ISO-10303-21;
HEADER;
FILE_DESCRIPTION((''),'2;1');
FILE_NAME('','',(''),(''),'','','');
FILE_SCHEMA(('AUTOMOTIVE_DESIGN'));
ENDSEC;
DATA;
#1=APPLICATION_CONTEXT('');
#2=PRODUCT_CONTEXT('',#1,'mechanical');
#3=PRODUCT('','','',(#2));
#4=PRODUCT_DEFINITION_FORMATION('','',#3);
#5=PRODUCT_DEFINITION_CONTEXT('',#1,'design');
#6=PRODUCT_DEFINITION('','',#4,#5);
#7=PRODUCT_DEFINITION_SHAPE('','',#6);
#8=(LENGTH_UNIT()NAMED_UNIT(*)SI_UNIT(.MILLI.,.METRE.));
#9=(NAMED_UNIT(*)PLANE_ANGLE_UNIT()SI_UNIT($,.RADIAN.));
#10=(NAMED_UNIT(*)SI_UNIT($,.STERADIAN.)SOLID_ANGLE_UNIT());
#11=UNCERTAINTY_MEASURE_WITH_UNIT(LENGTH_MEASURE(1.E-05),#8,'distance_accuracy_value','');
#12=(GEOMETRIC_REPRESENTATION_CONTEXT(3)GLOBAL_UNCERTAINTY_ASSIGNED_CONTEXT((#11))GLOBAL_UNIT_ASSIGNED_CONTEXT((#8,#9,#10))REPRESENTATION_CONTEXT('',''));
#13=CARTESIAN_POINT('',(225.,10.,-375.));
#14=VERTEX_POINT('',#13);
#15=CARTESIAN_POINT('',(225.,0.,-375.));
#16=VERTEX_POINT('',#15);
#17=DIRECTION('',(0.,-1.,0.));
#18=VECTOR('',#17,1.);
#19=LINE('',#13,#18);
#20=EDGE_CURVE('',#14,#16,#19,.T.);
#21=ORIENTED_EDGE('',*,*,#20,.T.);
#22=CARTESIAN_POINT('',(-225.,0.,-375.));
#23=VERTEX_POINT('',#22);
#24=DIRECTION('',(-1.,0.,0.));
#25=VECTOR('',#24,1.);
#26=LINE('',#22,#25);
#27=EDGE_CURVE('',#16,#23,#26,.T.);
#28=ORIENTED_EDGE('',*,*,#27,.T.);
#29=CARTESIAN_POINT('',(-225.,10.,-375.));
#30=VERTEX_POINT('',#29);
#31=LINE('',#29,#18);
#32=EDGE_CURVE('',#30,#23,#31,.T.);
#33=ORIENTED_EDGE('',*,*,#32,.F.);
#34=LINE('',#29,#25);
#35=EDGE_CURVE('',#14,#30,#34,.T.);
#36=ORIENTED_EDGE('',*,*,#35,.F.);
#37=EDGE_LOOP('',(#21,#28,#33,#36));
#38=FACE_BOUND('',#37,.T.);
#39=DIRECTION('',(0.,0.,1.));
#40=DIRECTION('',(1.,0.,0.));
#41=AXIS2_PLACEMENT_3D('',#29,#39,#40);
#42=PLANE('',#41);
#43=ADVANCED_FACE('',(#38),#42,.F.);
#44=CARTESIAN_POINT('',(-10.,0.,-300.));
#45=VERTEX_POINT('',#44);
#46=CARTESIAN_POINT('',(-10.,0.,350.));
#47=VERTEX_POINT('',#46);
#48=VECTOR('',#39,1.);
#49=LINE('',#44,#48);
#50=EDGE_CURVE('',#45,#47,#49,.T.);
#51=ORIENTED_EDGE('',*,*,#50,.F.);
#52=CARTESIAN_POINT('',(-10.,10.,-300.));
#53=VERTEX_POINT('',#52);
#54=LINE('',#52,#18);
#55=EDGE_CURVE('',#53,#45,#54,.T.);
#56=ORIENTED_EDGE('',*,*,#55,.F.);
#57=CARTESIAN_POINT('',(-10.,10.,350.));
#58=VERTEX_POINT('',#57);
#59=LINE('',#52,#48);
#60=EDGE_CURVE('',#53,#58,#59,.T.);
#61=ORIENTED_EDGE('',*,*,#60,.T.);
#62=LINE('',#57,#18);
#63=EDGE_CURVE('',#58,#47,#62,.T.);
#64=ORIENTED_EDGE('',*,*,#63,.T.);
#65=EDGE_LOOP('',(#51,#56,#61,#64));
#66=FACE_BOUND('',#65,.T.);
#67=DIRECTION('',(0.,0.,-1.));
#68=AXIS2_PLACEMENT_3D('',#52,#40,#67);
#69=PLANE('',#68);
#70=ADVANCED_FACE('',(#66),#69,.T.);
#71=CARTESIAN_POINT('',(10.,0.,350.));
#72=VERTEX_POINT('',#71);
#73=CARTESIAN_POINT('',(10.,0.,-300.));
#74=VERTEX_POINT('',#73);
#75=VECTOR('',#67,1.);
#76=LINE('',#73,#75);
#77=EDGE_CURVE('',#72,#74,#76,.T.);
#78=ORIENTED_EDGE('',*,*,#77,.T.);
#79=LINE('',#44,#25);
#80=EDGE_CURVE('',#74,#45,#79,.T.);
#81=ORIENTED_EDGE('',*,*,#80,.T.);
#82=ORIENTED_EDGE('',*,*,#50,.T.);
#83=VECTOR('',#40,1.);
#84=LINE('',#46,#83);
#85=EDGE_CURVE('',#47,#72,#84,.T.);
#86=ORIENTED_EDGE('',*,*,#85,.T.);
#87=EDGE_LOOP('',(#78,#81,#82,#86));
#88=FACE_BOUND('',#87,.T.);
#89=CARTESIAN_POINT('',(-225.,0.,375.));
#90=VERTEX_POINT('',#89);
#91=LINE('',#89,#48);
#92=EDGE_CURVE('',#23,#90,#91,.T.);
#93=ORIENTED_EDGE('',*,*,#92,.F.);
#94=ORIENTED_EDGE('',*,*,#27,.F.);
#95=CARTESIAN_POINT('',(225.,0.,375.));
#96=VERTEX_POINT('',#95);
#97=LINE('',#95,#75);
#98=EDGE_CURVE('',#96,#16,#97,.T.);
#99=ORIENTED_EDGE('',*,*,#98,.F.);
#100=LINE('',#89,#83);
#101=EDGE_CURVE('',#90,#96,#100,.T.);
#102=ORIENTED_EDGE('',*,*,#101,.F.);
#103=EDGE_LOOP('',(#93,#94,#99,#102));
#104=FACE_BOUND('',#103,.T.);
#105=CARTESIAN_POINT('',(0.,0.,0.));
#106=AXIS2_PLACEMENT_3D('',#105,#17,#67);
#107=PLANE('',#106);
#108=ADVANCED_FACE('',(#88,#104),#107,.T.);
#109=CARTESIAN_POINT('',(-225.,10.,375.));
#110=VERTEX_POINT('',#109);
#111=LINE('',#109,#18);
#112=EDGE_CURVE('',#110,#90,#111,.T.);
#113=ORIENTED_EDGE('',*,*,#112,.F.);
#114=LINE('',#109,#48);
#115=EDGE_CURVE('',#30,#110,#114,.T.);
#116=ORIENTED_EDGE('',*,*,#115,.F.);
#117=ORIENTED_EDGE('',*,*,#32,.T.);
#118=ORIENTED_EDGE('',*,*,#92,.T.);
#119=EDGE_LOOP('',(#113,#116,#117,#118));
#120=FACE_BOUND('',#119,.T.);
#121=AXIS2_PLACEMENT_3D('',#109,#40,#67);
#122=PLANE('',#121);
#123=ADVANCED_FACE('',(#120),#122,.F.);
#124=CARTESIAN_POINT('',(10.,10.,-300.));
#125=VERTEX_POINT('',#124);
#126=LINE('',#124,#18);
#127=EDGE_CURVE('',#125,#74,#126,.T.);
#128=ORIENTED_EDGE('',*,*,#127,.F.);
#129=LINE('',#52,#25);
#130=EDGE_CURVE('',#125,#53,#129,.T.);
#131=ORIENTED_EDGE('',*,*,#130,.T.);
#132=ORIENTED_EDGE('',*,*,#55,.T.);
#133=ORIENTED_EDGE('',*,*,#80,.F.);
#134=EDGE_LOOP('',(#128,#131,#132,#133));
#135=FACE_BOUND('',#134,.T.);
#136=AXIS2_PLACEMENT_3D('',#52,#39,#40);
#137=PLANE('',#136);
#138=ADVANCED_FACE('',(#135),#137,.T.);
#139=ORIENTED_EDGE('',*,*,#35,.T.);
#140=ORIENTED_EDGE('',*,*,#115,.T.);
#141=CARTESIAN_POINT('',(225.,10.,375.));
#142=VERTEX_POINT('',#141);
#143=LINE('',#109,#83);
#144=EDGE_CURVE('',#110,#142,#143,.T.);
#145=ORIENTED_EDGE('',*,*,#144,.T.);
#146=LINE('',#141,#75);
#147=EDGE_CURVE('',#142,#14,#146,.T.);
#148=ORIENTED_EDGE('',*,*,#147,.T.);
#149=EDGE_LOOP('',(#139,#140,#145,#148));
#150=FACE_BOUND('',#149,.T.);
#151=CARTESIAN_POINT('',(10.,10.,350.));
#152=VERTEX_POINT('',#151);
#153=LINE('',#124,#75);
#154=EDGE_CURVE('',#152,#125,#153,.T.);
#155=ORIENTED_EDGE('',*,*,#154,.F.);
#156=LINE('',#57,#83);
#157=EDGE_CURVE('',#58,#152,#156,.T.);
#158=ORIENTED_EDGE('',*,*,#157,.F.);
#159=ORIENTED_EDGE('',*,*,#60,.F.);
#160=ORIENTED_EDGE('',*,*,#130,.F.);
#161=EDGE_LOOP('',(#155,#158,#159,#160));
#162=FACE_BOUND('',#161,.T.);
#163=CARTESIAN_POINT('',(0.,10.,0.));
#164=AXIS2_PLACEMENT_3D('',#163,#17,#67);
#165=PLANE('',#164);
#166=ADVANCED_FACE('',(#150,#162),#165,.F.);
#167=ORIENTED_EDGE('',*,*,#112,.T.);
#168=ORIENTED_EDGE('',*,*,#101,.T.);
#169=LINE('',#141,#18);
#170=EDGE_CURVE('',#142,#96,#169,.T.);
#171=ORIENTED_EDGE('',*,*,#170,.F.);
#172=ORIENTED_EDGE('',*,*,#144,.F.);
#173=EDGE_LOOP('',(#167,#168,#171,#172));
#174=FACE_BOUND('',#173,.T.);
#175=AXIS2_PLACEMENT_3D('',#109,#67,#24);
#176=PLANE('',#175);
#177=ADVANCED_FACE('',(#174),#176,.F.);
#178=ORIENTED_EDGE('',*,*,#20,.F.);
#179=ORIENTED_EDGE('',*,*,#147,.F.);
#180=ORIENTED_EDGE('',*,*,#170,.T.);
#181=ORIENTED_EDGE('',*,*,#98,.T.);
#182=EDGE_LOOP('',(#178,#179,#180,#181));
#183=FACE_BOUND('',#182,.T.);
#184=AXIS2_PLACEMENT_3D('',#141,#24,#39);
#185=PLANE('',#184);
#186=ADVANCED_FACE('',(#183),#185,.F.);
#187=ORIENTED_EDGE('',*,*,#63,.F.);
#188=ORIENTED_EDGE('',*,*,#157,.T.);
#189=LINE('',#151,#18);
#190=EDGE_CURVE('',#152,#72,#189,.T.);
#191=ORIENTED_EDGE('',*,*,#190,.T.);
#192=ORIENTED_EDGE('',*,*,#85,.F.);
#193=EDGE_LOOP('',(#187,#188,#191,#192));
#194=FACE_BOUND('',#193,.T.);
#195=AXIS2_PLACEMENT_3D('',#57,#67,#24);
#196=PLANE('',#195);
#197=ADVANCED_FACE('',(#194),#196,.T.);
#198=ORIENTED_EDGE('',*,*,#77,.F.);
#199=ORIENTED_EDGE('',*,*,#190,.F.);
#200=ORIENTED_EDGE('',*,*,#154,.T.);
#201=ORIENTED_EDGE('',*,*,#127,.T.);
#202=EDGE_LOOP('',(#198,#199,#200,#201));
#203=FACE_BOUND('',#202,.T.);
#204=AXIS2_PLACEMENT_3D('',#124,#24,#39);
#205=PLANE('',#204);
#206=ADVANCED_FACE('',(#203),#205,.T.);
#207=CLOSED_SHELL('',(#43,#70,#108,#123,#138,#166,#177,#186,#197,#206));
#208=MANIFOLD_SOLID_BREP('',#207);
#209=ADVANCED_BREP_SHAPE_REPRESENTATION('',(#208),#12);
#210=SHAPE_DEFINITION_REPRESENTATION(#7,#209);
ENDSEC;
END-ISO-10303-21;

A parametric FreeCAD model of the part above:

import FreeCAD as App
import Part
import Sketcher

V = App.Vector

doc = App.newDocument("Part")
body = doc.addObject("PartDesign::Body", "Body")

# Sketch on XZ plane
sketch1 = doc.addObject("Sketcher::SketchObject", "Sketch")
body.addObject(sketch1)
sketch1.AttachmentSupport = (doc.XZ_Plane, [""])
sketch1.MapMode = "FlatFace"
sketch1.addGeometry(Part.LineSegment(V(-225, -375, 0), V(-225, 375, 0)), False)
sketch1.addGeometry(Part.LineSegment(V(-225, 375, 0), V(225, 375, 0)), False)
sketch1.addGeometry(Part.LineSegment(V(225, 375, 0), V(225, -375, 0)), False)
sketch1.addGeometry(Part.LineSegment(V(225, -375, 0), V(-225, -375, 0)), False)
sketch1.addGeometry(Part.LineSegment(V(10, 350, 0), V(-10, 350, 0)), False)
sketch1.addGeometry(Part.LineSegment(V(-10, 350, 0), V(-10, -300, 0)), False)
sketch1.addGeometry(Part.LineSegment(V(-10, -300, 0), V(10, -300, 0)), False)
sketch1.addGeometry(Part.LineSegment(V(10, -300, 0), V(10, 350, 0)), False)
sketch1.addConstraint(Sketcher.Constraint("Coincident", 0, 2, 1, 1))
sketch1.addConstraint(Sketcher.Constraint("Coincident", 1, 2, 2, 1))
sketch1.addConstraint(Sketcher.Constraint("Coincident", 2, 2, 3, 1))
sketch1.addConstraint(Sketcher.Constraint("Coincident", 3, 2, 0, 1))
sketch1.addConstraint(Sketcher.Constraint("Coincident", 4, 2, 5, 1))
sketch1.addConstraint(Sketcher.Constraint("Coincident", 5, 2, 6, 1))
sketch1.addConstraint(Sketcher.Constraint("Coincident", 6, 2, 7, 1))
sketch1.addConstraint(Sketcher.Constraint("Coincident", 7, 2, 4, 1))
sketch1.addConstraint(Sketcher.Constraint("Vertical", 0))
sketch1.addConstraint(Sketcher.Constraint("Horizontal", 1))
sketch1.addConstraint(Sketcher.Constraint("Vertical", 2))
sketch1.addConstraint(Sketcher.Constraint("Horizontal", 3))
sketch1.addConstraint(Sketcher.Constraint("Horizontal", 4))
sketch1.addConstraint(Sketcher.Constraint("Vertical", 5))
sketch1.addConstraint(Sketcher.Constraint("Horizontal", 6))
sketch1.addConstraint(Sketcher.Constraint("Vertical", 7))
sketch1.addConstraint(Sketcher.Constraint("Symmetric", 0, 2, 2, 2, -1, 1))
sketch1.addConstraint(Sketcher.Constraint("DistanceX", 1, 1, 1, 2, 450.0))
sketch1.addConstraint(Sketcher.Constraint("DistanceX", 4, 2, 4, 1, 20.0))
sketch1.addConstraint(Sketcher.Constraint("DistanceY", 0, 1, 0, 2, 750.0))
sketch1.addConstraint(Sketcher.Constraint("DistanceY", 5, 2, 5, 1, 650.0))
sketch1.addConstraint(Sketcher.Constraint("DistanceX", 4, 2, -1, 1, 10.0))
sketch1.addConstraint(Sketcher.Constraint("DistanceY", -1, 1, 4, 2, 350.0))
pad1 = doc.addObject("PartDesign::Pad", "Pad")
body.addObject(pad1)
pad1.Profile = sketch1
pad1.Length = 10
pad1.Reversed = True

doc.recompute()
